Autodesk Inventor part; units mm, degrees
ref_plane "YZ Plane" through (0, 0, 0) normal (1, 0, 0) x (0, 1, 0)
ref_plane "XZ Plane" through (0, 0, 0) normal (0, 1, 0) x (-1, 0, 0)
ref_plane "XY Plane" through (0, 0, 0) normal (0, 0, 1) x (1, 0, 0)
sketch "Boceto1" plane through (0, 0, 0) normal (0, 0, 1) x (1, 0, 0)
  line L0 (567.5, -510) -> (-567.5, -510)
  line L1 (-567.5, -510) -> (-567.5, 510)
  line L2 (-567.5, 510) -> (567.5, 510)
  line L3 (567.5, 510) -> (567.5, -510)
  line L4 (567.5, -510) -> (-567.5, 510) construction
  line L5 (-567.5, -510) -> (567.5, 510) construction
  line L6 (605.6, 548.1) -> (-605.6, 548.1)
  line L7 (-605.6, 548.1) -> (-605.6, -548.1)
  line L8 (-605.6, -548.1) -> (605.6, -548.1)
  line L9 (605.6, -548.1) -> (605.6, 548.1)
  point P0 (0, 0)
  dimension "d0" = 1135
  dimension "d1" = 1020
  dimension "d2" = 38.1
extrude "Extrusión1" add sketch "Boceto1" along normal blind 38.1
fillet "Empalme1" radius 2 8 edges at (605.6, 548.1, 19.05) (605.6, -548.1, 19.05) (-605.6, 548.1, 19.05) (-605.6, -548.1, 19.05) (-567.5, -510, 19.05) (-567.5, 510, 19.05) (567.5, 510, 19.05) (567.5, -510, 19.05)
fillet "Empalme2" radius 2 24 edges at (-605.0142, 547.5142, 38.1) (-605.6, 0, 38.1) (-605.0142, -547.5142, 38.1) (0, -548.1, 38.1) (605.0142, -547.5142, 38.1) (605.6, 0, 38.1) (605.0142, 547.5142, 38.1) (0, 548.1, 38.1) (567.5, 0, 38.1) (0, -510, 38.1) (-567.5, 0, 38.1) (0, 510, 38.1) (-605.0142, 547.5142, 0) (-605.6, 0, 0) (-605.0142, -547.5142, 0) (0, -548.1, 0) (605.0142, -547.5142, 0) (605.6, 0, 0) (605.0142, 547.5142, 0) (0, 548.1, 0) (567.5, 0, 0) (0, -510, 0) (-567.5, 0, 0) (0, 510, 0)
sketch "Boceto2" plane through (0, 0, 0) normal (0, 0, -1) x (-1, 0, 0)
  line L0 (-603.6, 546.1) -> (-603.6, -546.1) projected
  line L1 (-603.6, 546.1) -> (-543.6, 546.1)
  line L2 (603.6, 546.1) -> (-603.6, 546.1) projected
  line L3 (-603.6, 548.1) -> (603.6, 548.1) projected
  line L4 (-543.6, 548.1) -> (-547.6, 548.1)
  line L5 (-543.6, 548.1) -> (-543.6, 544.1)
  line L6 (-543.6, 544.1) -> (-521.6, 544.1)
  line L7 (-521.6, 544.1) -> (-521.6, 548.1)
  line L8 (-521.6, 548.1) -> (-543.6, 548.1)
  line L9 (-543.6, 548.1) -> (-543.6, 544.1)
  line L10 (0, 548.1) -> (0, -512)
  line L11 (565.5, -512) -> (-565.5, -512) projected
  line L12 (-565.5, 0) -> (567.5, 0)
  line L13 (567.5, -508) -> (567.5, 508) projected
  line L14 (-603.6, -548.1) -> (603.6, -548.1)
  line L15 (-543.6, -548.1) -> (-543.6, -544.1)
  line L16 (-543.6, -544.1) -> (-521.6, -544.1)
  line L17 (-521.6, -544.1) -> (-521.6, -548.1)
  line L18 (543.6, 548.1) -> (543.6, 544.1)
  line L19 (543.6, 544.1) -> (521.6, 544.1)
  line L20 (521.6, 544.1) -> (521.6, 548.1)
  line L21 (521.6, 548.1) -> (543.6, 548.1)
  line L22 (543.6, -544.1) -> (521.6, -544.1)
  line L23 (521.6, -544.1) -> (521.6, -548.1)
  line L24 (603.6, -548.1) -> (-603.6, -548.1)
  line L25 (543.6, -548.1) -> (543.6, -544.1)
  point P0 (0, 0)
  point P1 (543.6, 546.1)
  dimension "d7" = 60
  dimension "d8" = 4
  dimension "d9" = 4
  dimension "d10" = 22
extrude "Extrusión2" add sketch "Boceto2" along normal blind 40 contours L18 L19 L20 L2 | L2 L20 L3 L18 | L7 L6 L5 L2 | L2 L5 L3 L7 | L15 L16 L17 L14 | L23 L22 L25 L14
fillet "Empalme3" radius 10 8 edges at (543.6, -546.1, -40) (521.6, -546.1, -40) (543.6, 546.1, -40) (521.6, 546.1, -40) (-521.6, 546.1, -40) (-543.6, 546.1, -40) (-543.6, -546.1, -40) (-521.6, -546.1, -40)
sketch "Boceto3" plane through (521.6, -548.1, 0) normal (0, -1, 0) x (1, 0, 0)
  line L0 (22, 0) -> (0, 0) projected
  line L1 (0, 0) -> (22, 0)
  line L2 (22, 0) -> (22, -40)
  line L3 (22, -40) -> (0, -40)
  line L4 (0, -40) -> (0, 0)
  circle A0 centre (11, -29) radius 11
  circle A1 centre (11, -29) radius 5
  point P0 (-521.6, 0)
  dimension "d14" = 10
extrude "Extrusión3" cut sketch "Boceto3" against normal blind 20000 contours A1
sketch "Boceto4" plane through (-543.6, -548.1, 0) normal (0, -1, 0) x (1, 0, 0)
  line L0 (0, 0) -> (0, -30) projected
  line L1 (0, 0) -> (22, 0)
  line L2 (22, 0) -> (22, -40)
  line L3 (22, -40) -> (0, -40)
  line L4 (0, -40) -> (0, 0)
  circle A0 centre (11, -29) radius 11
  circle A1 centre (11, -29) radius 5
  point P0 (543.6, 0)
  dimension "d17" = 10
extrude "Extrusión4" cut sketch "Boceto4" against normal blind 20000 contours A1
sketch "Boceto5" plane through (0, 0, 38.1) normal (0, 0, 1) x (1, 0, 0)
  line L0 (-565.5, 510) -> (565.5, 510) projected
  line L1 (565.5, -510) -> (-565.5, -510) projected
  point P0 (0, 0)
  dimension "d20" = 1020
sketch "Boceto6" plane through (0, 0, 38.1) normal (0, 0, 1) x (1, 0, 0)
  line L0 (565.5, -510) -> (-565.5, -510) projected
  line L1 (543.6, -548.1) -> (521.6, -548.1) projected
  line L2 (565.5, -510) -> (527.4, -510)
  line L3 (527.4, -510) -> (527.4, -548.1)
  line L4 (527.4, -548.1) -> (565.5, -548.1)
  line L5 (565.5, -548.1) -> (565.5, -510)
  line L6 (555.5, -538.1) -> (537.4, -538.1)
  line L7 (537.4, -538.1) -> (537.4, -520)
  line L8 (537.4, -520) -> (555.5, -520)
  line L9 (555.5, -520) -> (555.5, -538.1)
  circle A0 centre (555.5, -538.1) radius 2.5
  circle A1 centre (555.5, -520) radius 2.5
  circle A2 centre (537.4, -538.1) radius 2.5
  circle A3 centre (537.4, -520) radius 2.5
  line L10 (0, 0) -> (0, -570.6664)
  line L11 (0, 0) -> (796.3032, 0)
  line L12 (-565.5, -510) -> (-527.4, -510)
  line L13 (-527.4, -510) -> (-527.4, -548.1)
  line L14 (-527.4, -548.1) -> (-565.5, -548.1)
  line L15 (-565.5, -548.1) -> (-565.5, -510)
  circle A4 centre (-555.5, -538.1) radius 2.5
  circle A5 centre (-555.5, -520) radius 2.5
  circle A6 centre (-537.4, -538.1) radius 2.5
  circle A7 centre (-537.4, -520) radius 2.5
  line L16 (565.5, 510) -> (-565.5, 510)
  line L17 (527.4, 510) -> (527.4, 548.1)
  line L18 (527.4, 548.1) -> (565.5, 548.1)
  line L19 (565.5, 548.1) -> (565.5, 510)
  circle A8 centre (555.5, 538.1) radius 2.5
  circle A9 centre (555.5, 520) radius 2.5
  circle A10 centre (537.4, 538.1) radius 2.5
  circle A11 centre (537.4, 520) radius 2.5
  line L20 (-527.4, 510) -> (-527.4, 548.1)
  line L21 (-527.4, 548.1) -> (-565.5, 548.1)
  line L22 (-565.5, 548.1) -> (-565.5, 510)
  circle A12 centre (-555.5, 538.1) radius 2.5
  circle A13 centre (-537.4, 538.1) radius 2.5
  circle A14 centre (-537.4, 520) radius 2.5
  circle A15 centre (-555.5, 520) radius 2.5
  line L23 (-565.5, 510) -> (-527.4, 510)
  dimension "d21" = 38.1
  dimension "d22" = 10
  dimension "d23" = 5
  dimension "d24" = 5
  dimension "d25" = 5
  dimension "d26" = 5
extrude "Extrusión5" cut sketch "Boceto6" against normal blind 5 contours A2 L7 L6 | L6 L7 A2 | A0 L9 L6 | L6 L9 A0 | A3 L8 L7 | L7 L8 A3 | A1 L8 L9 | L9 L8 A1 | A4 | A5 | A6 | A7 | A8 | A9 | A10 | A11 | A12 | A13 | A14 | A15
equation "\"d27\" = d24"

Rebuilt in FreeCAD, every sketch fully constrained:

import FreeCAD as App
import Part
import Sketcher
Q = App.Units.Quantity


def edges_at(feature, points):
    """Names of the edges that pass closest to the given points."""
    edges = feature.Shape.Edges
    near = lambda p: min(range(len(edges)), key=lambda i: edges[i].distToShape(Part.Vertex(*p))[0])
    return sorted({f"Edge{near(p) + 1}" for p in points})


def add_polygon(sketch, points):
    """Adds a closed chain of lines whose ends are joined by coincident constraints."""
    first, n = sketch.GeometryCount, len(points)
    for a, b in zip(points, points[1:] + points[:1]):
        sketch.addGeometry(Part.LineSegment(App.Vector(*a, 0), App.Vector(*b, 0)), False)
    for i in range(n):
        sketch.addConstraint(Sketcher.Constraint("Coincident", first + i, 2, first + (i + 1) % n, 1))

doc = App.newDocument("Part")
params = doc.addObject("Spreadsheet::Sheet", "Params")
for row, (alias, value) in enumerate([
    ("sketch1_width", "1135 mm"),
    ("sketch1_height", "1020 mm"),
    ("pad1_length", "38.1 mm"),
    ("fillet_radius", "2 mm"),
    ("fillet2_radius", "2 mm"),
    ("sketch2_width", "22 mm"),
    ("sketch2_height", "4 mm"),
    ("pad2_length", "40 mm"),
    ("fillet3_radius", "10 mm"),
    ("sketch3_diameter", "10 mm"),
    ("pocket1_length", "20000 mm"),
    ("sketch4_diameter", "10 mm"),
    ("pocket2_length", "20000 mm"),
    ("sketch5_diameter", "5 mm"),
    ("pocket3_length", "5 mm"),
], start=1):
    params.set(f"A{row}", alias)
    params.set(f"B{row}", "=" + value)
    params.setAlias(f"B{row}", alias)

body = doc.addObject("PartDesign::Body", "Body")

sketch1 = doc.addObject("Sketcher::SketchObject", "Sketch")
body.addObject(sketch1)
sketch1.AttachmentSupport = (doc.XY_Plane, [""])
sketch1.MapMode = "FlatFace"
add_polygon(sketch1, [(606, -548), (606, 548), (-606, 548), (-606, -548)])
add_polygon(sketch1, [(568, 510), (568, -510), (-568, -510), (-568, 510)])
sketch1.addConstraint(Sketcher.Constraint("Vertical", 0))
sketch1.addConstraint(Sketcher.Constraint("Horizontal", 1))
sketch1.addConstraint(Sketcher.Constraint("Vertical", 2))
sketch1.addConstraint(Sketcher.Constraint("Horizontal", 3))
sketch1.addConstraint(Sketcher.Constraint("Vertical", 4))
sketch1.addConstraint(Sketcher.Constraint("Horizontal", 5))
sketch1.addConstraint(Sketcher.Constraint("Vertical", 6))
sketch1.addConstraint(Sketcher.Constraint("Horizontal", 7))
sketch1.addConstraint(Sketcher.Constraint("Symmetric", 0, 2, 2, 2, -1, 1))
sketch1.addConstraint(Sketcher.Constraint("Symmetric", 4, 2, 6, 2, -1, 1))
sketch1.addConstraint(Sketcher.Constraint("DistanceX", 5, 2, 5, 1, Q("1135 mm")))
sketch1.addConstraint(Sketcher.Constraint("DistanceY", 4, 2, 4, 1, Q("1020 mm")))
sketch1.addConstraint(Sketcher.Constraint("DistanceX", 4, 2, 3, 2, Q("38.1 mm")))
sketch1.addConstraint(Sketcher.Constraint("DistanceY", 3, 2, 4, 2, Q("38.1 mm")))
sketch1.setExpression("Constraints[18]", "Params.sketch1_width")
sketch1.setExpression("Constraints[19]", "Params.sketch1_height")
pad1 = doc.addObject("PartDesign::Pad", "Pad")
body.addObject(pad1)
pad1.Profile = sketch1
pad1.setExpression("Length", "Params.pad1_length")
doc.recompute()

fillet = doc.addObject("PartDesign::Fillet", "Fillet")
body.addObject(fillet)
fillet.Base = (pad1, edges_at(pad1, [
    (605.6, 548.1, 19.05),
    (605.6, -548.1, 19.05),
    (-605.6, 548.1, 19.05),
    (-605.6, -548.1, 19.05),
    (-567.5, -510, 19.05),
    (-567.5, 510, 19.05),
    (567.5, 510, 19.05),
    (567.5, -510, 19.05),
]))
fillet.setExpression("Radius", "Params.fillet_radius")
doc.recompute()

fillet2 = doc.addObject("PartDesign::Fillet", "Fillet001")
body.addObject(fillet2)
fillet2.Base = (fillet, edges_at(fillet, [
    (-605.014, 547.514, 38.1),
    (-605.6, 0, 38.1),
    (-605.014, -547.514, 38.1),
    (0, -548.1, 38.1),
    (605.014, -547.514, 38.1),
    (605.6, 0, 38.1),
    (605.014, 547.514, 38.1),
    (0, 548.1, 38.1),
    (567.5, 0, 38.1),
    (0, -510, 38.1),
    (-567.5, 0, 38.1),
    (0, 510, 38.1),
    (-605.014, 547.514, 0),
    (-605.6, 0, 0),
    (-605.014, -547.514, 0),
    (0, -548.1, 0),
    (605.014, -547.514, 0),
    (605.6, 0, 0),
    (605.014, 547.514, 0),
    (0, 548.1, 0),
    (567.5, 0, 0),
    (0, -510, 0),
    (-567.5, 0, 0),
    (0, 510, 0),
]))
fillet2.setExpression("Radius", "Params.fillet2_radius")

sketch2 = doc.addObject("Sketcher::SketchObject", "Sketch001")
body.addObject(sketch2)
sketch2.AttachmentSupport = (doc.XY_Plane, [""])
sketch2.MapMode = "FlatFace"
add_polygon(sketch2, [(-543.6, 544.1), (-543.6, 548.1), (-521.6, 548.1), (-521.6, 544.1)])
add_polygon(sketch2, [(521.6, 544.1), (521.6, 548.1), (543.6, 548.1), (543.6, 544.1)])
add_polygon(sketch2, [(543.6, -544.1), (543.6, -548.1), (521.6, -548.1), (521.6, -544.1)])
add_polygon(sketch2, [(-521.6, -544.1), (-521.6, -548.1), (-543.6, -548.1), (-543.6, -544.1)])
sketch2.addConstraint(Sketcher.Constraint("Vertical", 0))
sketch2.addConstraint(Sketcher.Constraint("Horizontal", 1))
sketch2.addConstraint(Sketcher.Constraint("Vertical", 2))
sketch2.addConstraint(Sketcher.Constraint("Horizontal", 3))
sketch2.addConstraint(Sketcher.Constraint("Vertical", 4))
sketch2.addConstraint(Sketcher.Constraint("Horizontal", 5))
sketch2.addConstraint(Sketcher.Constraint("Vertical", 6))
sketch2.addConstraint(Sketcher.Constraint("Horizontal", 7))
sketch2.addConstraint(Sketcher.Constraint("Vertical", 8))
sketch2.addConstraint(Sketcher.Constraint("Horizontal", 9))
sketch2.addConstraint(Sketcher.Constraint("Vertical", 10))
sketch2.addConstraint(Sketcher.Constraint("Horizontal", 11))
sketch2.addConstraint(Sketcher.Constraint("Vertical", 12))
sketch2.addConstraint(Sketcher.Constraint("Horizontal", 13))
sketch2.addConstraint(Sketcher.Constraint("Vertical", 14))
sketch2.addConstraint(Sketcher.Constraint("Horizontal", 15))
sketch2.addConstraint(Sketcher.Constraint("Symmetric", 0, 2, 8, 2, -1, 1))
sketch2.addConstraint(Sketcher.Constraint("Symmetric", 2, 2, 10, 2, -1, 1))
sketch2.addConstraint(Sketcher.Constraint("Symmetric", 4, 2, 12, 2, -1, 1))
sketch2.addConstraint(Sketcher.Constraint("Symmetric", 6, 2, 14, 2, -1, 1))
sketch2.addConstraint(Sketcher.Constraint("Symmetric", 1, 2, 4, 2, -2))
sketch2.addConstraint(Sketcher.Constraint("Symmetric", 3, 2, 6, 2, -2))
sketch2.addConstraint(Sketcher.Constraint("DistanceX", 1, 1, 1, 2, Q("22 mm")))
sketch2.addConstraint(Sketcher.Constraint("DistanceY", 0, 1, 0, 2, Q("4 mm")))
sketch2.addConstraint(Sketcher.Constraint("DistanceX", 0, 2, -1, 1, Q("543.6 mm")))
sketch2.addConstraint(Sketcher.Constraint("DistanceY", -1, 1, 0, 2, Q("548.1 mm")))
sketch2.setExpression("Constraints[38]", "Params.sketch2_width")
sketch2.setExpression("Constraints[39]", "Params.sketch2_height")
pad2 = doc.addObject("PartDesign::Pad", "Pad001")
body.addObject(pad2)
pad2.Profile = sketch2
pad2.setExpression("Length", "Params.pad2_length")
pad2.Reversed = True
doc.recompute()

fillet3 = doc.addObject("PartDesign::Fillet", "Fillet002")
body.addObject(fillet3)
fillet3.Base = (pad2, edges_at(pad2, [
    (543.6, -546.1, -40),
    (521.6, -546.1, -40),
    (543.6, 546.1, -40),
    (521.6, 546.1, -40),
    (-521.6, 546.1, -40),
    (-543.6, 546.1, -40),
    (-543.6, -546.1, -40),
    (-521.6, -546.1, -40),
]))
fillet3.setExpression("Radius", "Params.fillet3_radius")

sketch3 = doc.addObject("Sketcher::SketchObject", "Sketch002")
body.addObject(sketch3)
sketch3.AttachmentSupport = (doc.XZ_Plane, [""])
sketch3.MapMode = "FlatFace"
sketch3.AttachmentOffset = App.Placement(App.Vector(0, 0, 548.1), App.Rotation())
sketch3.addGeometry(Part.Circle(App.Vector(533, -29, 0), App.Vector(0, 0, 1), 5), False)
sketch3.addConstraint(Sketcher.Constraint("Diameter", 0, Q("10 mm")))
sketch3.addConstraint(Sketcher.Constraint("DistanceY", 0, 3, -1, 1, Q("29 mm")))
sketch3.addConstraint(Sketcher.Constraint("DistanceX", -1, 1, 0, 3, Q("532.6 mm")))
sketch3.setExpression("Constraints[0]", "Params.sketch3_diameter")
pocket1 = doc.addObject("PartDesign::Pocket", "Pocket")
body.addObject(pocket1)
pocket1.Profile = sketch3
pocket1.setExpression("Length", "Params.pocket1_length")

sketch4 = doc.addObject("Sketcher::SketchObject", "Sketch003")
body.addObject(sketch4)
sketch4.AttachmentSupport = (doc.XZ_Plane, [""])
sketch4.MapMode = "FlatFace"
sketch4.AttachmentOffset = App.Placement(App.Vector(0, 0, 548.1), App.Rotation())
sketch4.addGeometry(Part.Circle(App.Vector(-533, -29, 0), App.Vector(0, 0, 1), 5), False)
sketch4.addConstraint(Sketcher.Constraint("Diameter", 0, Q("10 mm")))
sketch4.addConstraint(Sketcher.Constraint("DistanceY", 0, 3, -1, 1, Q("29 mm")))
sketch4.addConstraint(Sketcher.Constraint("DistanceX", 0, 3, -1, 1, Q("532.6 mm")))
sketch4.setExpression("Constraints[0]", "Params.sketch4_diameter")
pocket2 = doc.addObject("PartDesign::Pocket", "Pocket001")
body.addObject(pocket2)
pocket2.Profile = sketch4
pocket2.setExpression("Length", "Params.pocket2_length")

sketch5 = doc.addObject("Sketcher::SketchObject", "Sketch004")
body.addObject(sketch5)
sketch5.AttachmentSupport = (doc.XY_Plane, [""])
sketch5.MapMode = "FlatFace"
sketch5.AttachmentOffset = App.Placement(App.Vector(0, 0, 38.1), App.Rotation())
sketch5.addGeometry(Part.Circle(App.Vector(537.4, -538.1, 0), App.Vector(0, 0, 1), 2.5), False)
sketch5.addGeometry(Part.Circle(App.Vector(555.5, -538.1, 0), App.Vector(0, 0, 1), 2.5), False)
sketch5.addGeometry(Part.Circle(App.Vector(537.4, -520, 0), App.Vector(0, 0, 1), 2.5), False)
sketch5.addGeometry(Part.Circle(App.Vector(555.5, -520, 0), App.Vector(0, 0, 1), 2.5), False)
sketch5.addGeometry(Part.Circle(App.Vector(-555.5, -538.1, 0), App.Vector(0, 0, 1), 2.5), False)
sketch5.addGeometry(Part.Circle(App.Vector(-555.5, -520, 0), App.Vector(0, 0, 1), 2.5), False)
sketch5.addGeometry(Part.Circle(App.Vector(-537.4, -538.1, 0), App.Vector(0, 0, 1), 2.5), False)
sketch5.addGeometry(Part.Circle(App.Vector(-537.4, -520, 0), App.Vector(0, 0, 1), 2.5), False)
sketch5.addGeometry(Part.Circle(App.Vector(555.5, 538.1, 0), App.Vector(0, 0, 1), 2.5), False)
sketch5.addGeometry(Part.Circle(App.Vector(555.5, 520, 0), App.Vector(0, 0, 1), 2.5), False)
sketch5.addGeometry(Part.Circle(App.Vector(537.4, 538.1, 0), App.Vector(0, 0, 1), 2.5), False)
sketch5.addGeometry(Part.Circle(App.Vector(537.4, 520, 0), App.Vector(0, 0, 1), 2.5), False)
sketch5.addGeometry(Part.Circle(App.Vector(-555.5, 538.1, 0), App.Vector(0, 0, 1), 2.5), False)
sketch5.addGeometry(Part.Circle(App.Vector(-537.4, 538.1, 0), App.Vector(0, 0, 1), 2.5), False)
sketch5.addGeometry(Part.Circle(App.Vector(-537.4, 520, 0), App.Vector(0, 0, 1), 2.5), False)
sketch5.addGeometry(Part.Circle(App.Vector(-555.5, 520, 0), App.Vector(0, 0, 1), 2.5), False)
sketch5.addConstraint(Sketcher.Constraint("Equal", 0, 1))
sketch5.addConstraint(Sketcher.Constraint("Equal", 1, 2))
sketch5.addConstraint(Sketcher.Constraint("Equal", 2, 3))
sketch5.addConstraint(Sketcher.Constraint("Equal", 3, 4))
sketch5.addConstraint(Sketcher.Constraint("Equal", 4, 5))
sketch5.addConstraint(Sketcher.Constraint("Equal", 5, 6))
sketch5.addConstraint(Sketcher.Constraint("Equal", 6, 7))
sketch5.addConstraint(Sketcher.Constraint("Equal", 7, 8))
sketch5.addConstraint(Sketcher.Constraint("Equal", 8, 9))
sketch5.addConstraint(Sketcher.Constraint("Equal", 9, 10))
sketch5.addConstraint(Sketcher.Constraint("Equal", 10, 11))
sketch5.addConstraint(Sketcher.Constraint("Equal", 11, 12))
sketch5.addConstraint(Sketcher.Constraint("Equal", 12, 13))
sketch5.addConstraint(Sketcher.Constraint("Equal", 13, 14))
sketch5.addConstraint(Sketcher.Constraint("Equal", 14, 15))
sketch5.addConstraint(Sketcher.Constraint("Symmetric", 4, 3, 8, 3, -1, 1))
sketch5.addConstraint(Sketcher.Constraint("Symmetric", 5, 3, 9, 3, -1, 1))
sketch5.addConstraint(Sketcher.Constraint("Symmetric", 6, 3, 10, 3, -1, 1))
sketch5.addConstraint(Sketcher.Constraint("Symmetric", 7, 3, 11, 3, -1, 1))
sketch5.addConstraint(Sketcher.Constraint("Symmetric", 1, 3, 12, 3, -1, 1))
sketch5.addConstraint(Sketcher.Constraint("Symmetric", 0, 3, 13, 3, -1, 1))
sketch5.addConstraint(Sketcher.Constraint("Symmetric", 2, 3, 14, 3, -1, 1))
sketch5.addConstraint(Sketcher.Constraint("Symmetric", 3, 3, 15, 3, -1, 1))
sketch5.addConstraint(Sketcher.Constraint("Symmetric", 1, 3, 4, 3, -2))
sketch5.addConstraint(Sketcher.Constraint("Symmetric", 3, 3, 5, 3, -2))
sketch5.addConstraint(Sketcher.Constraint("Symmetric", 0, 3, 6, 3, -2))
sketch5.addConstraint(Sketcher.Constraint("Symmetric", 2, 3, 7, 3, -2))
sketch5.addConstraint(Sketcher.Constraint("Horizontal", 0, 3, 1, 3))
sketch5.addConstraint(Sketcher.Constraint("Horizontal", 2, 3, 3, 3))
sketch5.addConstraint(Sketcher.Constraint("Vertical", 0, 3, 2, 3))
sketch5.addConstraint(Sketcher.Constraint("Vertical", 1, 3, 3, 3))
sketch5.addConstraint(Sketcher.Constraint("Diameter", 0, Q("5 mm")))
sketch5.addConstraint(Sketcher.Constraint("DistanceY", 2, 3, -1, 1, Q("520 mm")))
sketch5.addConstraint(Sketcher.Constraint("DistanceX", 4, 3, 1, 3, Q("1111 mm")))
sketch5.addConstraint(Sketcher.Constraint("DistanceX", -1, 1, 0, 3, Q("537.4 mm")))
sketch5.addConstraint(Sketcher.Constraint("DistanceY", 0, 3, -1, 1, Q("538.1 mm")))
sketch5.setExpression("Constraints[31]", "Params.sketch5_diameter")
pocket3 = doc.addObject("PartDesign::Pocket", "Pocket002")
body.addObject(pocket3)
pocket3.Profile = sketch5
pocket3.setExpression("Length", "Params.pocket3_length")

doc.recompute()
